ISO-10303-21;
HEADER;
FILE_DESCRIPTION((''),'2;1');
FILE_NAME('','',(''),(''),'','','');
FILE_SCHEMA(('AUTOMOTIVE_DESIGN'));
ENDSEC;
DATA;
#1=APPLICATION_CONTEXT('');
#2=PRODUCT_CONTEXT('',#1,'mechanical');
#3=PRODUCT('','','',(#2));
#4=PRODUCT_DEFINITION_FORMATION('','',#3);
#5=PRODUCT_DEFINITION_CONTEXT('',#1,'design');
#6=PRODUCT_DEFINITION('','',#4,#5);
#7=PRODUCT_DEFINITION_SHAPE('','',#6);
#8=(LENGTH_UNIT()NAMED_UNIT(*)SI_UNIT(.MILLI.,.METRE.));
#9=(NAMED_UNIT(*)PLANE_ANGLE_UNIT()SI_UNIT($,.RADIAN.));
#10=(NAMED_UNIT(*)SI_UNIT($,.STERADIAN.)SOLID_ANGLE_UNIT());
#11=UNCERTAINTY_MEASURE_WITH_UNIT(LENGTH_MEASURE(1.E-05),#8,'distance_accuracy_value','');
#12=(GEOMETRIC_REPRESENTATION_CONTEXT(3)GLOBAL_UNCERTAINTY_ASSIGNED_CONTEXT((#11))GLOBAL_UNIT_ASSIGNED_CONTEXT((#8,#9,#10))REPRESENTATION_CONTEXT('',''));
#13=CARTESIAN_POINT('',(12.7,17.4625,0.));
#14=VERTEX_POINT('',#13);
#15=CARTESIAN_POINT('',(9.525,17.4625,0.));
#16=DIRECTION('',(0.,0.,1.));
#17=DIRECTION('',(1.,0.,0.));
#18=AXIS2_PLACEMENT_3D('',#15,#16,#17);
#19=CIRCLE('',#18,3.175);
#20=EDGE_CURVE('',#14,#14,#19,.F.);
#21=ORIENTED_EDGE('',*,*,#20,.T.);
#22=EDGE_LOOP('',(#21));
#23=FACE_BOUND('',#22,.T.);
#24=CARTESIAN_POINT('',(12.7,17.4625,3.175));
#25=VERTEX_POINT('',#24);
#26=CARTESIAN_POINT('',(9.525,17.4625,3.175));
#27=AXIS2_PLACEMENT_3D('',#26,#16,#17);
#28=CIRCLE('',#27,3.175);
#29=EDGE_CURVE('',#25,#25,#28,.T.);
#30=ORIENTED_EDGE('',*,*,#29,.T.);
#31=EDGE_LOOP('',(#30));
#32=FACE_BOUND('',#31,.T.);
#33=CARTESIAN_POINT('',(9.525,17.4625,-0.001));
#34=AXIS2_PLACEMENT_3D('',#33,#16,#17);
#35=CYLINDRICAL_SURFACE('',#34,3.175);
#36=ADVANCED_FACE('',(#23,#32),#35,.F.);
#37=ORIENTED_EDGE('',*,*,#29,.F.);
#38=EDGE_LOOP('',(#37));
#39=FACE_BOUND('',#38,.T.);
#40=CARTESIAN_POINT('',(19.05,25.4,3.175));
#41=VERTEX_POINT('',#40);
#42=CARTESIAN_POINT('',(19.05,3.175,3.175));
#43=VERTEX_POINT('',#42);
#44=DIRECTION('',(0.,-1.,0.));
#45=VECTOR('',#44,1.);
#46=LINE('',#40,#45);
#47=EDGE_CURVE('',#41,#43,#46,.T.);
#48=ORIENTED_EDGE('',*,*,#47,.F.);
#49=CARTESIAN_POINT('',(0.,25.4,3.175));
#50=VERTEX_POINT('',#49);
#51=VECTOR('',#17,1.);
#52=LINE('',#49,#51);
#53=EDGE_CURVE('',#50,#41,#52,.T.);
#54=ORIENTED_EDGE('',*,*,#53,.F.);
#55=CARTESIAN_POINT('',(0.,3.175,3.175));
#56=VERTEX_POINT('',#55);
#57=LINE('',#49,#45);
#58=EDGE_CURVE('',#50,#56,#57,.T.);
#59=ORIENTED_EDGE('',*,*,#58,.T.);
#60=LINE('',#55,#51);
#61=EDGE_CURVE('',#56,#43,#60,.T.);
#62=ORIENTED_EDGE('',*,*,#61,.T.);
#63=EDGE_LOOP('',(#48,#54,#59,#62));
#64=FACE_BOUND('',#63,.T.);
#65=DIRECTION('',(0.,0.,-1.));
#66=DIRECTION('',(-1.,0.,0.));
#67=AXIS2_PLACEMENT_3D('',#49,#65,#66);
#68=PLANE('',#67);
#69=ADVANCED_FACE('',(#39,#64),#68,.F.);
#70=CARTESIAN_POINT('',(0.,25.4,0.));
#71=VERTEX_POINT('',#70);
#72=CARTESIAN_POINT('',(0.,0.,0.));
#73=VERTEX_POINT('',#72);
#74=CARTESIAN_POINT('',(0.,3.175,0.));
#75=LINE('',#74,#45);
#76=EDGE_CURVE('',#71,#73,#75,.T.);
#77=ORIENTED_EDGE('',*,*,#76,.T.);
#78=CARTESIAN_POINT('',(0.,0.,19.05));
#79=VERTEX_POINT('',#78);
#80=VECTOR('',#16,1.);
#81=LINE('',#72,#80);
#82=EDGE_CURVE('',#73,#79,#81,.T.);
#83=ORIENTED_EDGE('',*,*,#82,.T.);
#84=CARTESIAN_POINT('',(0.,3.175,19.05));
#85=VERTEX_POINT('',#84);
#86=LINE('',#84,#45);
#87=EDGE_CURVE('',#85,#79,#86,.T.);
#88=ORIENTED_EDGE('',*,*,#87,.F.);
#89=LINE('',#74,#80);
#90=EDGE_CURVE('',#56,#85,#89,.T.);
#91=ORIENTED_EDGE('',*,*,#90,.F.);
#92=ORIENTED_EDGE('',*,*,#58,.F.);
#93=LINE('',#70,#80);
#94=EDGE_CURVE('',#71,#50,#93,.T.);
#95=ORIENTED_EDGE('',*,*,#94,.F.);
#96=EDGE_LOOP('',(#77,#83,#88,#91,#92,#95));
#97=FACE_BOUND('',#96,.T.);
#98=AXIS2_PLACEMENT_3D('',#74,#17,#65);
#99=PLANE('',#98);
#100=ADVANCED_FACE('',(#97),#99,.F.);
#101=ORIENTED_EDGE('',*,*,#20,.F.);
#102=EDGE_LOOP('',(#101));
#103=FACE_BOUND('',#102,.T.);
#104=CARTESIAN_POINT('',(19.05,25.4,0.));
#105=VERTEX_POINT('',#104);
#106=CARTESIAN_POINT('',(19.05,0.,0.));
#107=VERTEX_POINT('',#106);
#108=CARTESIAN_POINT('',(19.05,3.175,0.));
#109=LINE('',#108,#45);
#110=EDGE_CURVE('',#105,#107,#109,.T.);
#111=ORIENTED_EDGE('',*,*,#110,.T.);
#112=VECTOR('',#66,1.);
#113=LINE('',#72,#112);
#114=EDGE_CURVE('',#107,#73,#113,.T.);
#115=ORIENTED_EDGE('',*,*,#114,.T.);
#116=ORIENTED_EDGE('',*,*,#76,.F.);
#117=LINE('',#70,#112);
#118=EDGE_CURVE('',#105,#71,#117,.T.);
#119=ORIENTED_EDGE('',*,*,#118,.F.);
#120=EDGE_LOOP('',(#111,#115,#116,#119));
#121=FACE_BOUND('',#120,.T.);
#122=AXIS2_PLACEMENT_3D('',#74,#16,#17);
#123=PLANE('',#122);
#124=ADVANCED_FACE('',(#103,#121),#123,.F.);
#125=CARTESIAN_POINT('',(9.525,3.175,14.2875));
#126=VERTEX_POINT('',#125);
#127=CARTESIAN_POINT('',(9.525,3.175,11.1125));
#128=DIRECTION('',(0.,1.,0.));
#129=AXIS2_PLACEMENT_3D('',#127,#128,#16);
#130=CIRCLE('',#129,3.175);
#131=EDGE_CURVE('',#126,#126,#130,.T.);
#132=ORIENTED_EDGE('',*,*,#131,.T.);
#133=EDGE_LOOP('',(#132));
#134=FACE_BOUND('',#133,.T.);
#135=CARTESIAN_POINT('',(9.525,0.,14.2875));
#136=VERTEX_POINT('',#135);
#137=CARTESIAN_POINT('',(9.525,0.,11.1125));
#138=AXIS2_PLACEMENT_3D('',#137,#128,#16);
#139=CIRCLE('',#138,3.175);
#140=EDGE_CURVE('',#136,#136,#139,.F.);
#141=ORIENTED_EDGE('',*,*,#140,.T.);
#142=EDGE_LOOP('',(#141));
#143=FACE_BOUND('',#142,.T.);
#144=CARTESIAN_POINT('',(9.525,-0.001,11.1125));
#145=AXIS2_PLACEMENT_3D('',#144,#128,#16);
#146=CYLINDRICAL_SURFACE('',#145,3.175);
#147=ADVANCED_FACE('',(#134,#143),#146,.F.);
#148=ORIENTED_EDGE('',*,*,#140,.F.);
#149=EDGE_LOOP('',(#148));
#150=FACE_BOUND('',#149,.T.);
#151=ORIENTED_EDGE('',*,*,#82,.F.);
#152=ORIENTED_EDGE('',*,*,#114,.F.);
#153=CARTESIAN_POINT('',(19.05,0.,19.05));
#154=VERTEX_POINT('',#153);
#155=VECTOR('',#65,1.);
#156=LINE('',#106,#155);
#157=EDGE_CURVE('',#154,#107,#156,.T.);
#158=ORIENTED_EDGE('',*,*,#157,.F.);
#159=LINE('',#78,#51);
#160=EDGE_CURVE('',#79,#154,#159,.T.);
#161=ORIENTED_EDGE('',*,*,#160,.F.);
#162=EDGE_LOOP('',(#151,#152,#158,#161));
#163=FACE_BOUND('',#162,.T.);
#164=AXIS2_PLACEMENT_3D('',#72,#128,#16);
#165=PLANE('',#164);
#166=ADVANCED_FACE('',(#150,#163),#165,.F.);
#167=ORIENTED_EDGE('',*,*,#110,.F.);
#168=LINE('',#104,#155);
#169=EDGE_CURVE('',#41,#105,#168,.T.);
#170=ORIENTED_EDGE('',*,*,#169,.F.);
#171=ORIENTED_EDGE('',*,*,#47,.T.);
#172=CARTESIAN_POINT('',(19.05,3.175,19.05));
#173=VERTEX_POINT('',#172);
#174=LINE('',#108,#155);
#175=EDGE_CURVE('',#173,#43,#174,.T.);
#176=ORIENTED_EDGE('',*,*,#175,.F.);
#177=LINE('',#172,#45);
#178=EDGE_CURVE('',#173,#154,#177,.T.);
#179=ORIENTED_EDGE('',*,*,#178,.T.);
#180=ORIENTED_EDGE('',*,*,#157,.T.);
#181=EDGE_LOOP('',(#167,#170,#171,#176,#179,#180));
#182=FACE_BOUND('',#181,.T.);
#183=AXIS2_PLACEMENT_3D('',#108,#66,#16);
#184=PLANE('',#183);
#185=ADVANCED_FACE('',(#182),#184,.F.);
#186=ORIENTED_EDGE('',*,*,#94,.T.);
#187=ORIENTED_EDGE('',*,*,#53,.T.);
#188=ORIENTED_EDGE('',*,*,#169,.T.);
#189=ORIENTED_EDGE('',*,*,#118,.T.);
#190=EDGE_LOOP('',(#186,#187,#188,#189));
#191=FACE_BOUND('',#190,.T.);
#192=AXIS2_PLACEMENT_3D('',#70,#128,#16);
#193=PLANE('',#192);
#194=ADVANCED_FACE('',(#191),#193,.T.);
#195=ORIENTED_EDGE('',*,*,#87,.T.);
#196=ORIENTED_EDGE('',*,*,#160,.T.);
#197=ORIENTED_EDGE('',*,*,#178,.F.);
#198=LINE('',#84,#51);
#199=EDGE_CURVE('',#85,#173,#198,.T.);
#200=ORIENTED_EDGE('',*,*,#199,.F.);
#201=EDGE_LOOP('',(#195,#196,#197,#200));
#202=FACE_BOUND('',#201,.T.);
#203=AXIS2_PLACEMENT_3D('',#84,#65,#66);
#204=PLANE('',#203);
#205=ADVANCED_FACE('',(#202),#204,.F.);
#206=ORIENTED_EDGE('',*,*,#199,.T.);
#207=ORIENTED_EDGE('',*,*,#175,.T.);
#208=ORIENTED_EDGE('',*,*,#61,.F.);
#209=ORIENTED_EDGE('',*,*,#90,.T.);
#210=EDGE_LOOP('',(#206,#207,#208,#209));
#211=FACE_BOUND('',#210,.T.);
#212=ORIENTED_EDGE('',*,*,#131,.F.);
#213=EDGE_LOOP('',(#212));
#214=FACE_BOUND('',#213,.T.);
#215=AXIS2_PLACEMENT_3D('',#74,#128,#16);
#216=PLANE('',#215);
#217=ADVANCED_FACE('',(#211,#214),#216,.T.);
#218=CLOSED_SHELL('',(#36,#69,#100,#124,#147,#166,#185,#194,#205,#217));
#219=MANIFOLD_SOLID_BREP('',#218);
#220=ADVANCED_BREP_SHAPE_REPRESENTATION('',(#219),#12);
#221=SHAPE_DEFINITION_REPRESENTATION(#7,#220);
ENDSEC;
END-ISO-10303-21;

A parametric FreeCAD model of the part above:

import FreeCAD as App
import Part
import Sketcher

V = App.Vector
Q = App.Units.Quantity

doc = App.newDocument("Part")
params = doc.addObject("Spreadsheet::Sheet", "Params")
for row, (alias, value) in enumerate([
    ("sketch1_width", "0.75 in"),
    ("pad1_length", "0.125 in"),
    ("sketch2_width", "0.75 in"),
    ("sketch2_height", "0.125 in"),
    ("pad2_length", "0.875 in"),
    ("sketch3_diameter", "0.25 in"),
    ("sketch4_diameter", "0.25 in"),
], start=1):
    params.set(f"A{row}", alias)
    params.set(f"B{row}", "=" + value)
    params.setAlias(f"B{row}", alias)

body = doc.addObject("PartDesign::Body", "Body")

sketch1 = doc.addObject("Sketcher::SketchObject", "Sketch")
body.addObject(sketch1)
sketch1.AttachmentSupport = (doc.XZ_Plane, [""])
sketch1.MapMode = "FlatFace"
sketch1.addGeometry(Part.LineSegment(V(0, 0, 0), V(0, 19, 0)), False)
sketch1.addGeometry(Part.LineSegment(V(0, 19, 0), V(19, 19, 0)), False)
sketch1.addGeometry(Part.LineSegment(V(19, 19, 0), V(19, 0, 0)), False)
sketch1.addGeometry(Part.LineSegment(V(19, 0, 0), V(0, 0, 0)), False)
sketch1.addConstraint(Sketcher.Constraint("Coincident", 0, 2, 1, 1))
sketch1.addConstraint(Sketcher.Constraint("Coincident", 1, 2, 2, 1))
sketch1.addConstraint(Sketcher.Constraint("Coincident", 2, 2, 3, 1))
sketch1.addConstraint(Sketcher.Constraint("Coincident", 3, 2, 0, 1))
sketch1.addConstraint(Sketcher.Constraint("Vertical", 0))
sketch1.addConstraint(Sketcher.Constraint("Horizontal", 1))
sketch1.addConstraint(Sketcher.Constraint("Vertical", 2))
sketch1.addConstraint(Sketcher.Constraint("Horizontal", 3))
sketch1.addConstraint(Sketcher.Constraint("Coincident", 3, 2, -1, 1))
sketch1.addConstraint(Sketcher.Constraint("Equal", 3, 0))
sketch1.addConstraint(Sketcher.Constraint("DistanceX", 1, 1, 1, 2, Q("0.75 in")))
sketch1.setExpression("Constraints[10]", "Params.sketch1_width")
pad1 = doc.addObject("PartDesign::Pad", "Pad")
body.addObject(pad1)
pad1.Profile = sketch1
pad1.setExpression("Length", "Params.pad1_length")
pad1.Reversed = True

sketch2 = doc.addObject("Sketcher::SketchObject", "Sketch001")
body.addObject(sketch2)
sketch2.AttachmentSupport = (doc.XZ_Plane, [""])
sketch2.MapMode = "FlatFace"
sketch2.AttachmentOffset = App.Placement(V(0, 0, -0.125 * 25.4), App.Rotation())
sketch2.addGeometry(Part.LineSegment(V(0, 0, 0), V(0, 3.2, 0)), False)
sketch2.addGeometry(Part.LineSegment(V(0, 3.2, 0), V(19.1, 3.2, 0)), False)
sketch2.addGeometry(Part.LineSegment(V(19.1, 3.2, 0), V(19.1, 0, 0)), False)
sketch2.addGeometry(Part.LineSegment(V(19.1, 0, 0), V(0, 0, 0)), False)
sketch2.addConstraint(Sketcher.Constraint("Coincident", 0, 2, 1, 1))
sketch2.addConstraint(Sketcher.Constraint("Coincident", 1, 2, 2, 1))
sketch2.addConstraint(Sketcher.Constraint("Coincident", 2, 2, 3, 1))
sketch2.addConstraint(Sketcher.Constraint("Coincident", 3, 2, 0, 1))
sketch2.addConstraint(Sketcher.Constraint("Vertical", 0))
sketch2.addConstraint(Sketcher.Constraint("Horizontal", 1))
sketch2.addConstraint(Sketcher.Constraint("Vertical", 2))
sketch2.addConstraint(Sketcher.Constraint("Horizontal", 3))
sketch2.addConstraint(Sketcher.Constraint("Coincident", 3, 2, -1, 1))
sketch2.addConstraint(Sketcher.Constraint("DistanceX", 1, 1, 1, 2, Q("0.75 in")))
sketch2.addConstraint(Sketcher.Constraint("DistanceY", 0, 1, 0, 2, Q("0.125 in")))
sketch2.setExpression("Constraints[9]", "Params.sketch2_width")
sketch2.setExpression("Constraints[10]", "Params.sketch2_height")
pad2 = doc.addObject("PartDesign::Pad", "Pad001")
body.addObject(pad2)
pad2.Profile = sketch2
pad2.setExpression("Length", "Params.pad2_length")
pad2.Reversed = True

sketch3 = doc.addObject("Sketcher::SketchObject", "Sketch002")
body.addObject(sketch3)
sketch3.AttachmentSupport = (doc.XZ_Plane, [""])
sketch3.MapMode = "FlatFace"
sketch3.AttachmentOffset = App.Placement(V(0, 0, -0.125 * 25.4), App.Rotation())
sketch3.addGeometry(Part.Circle(V(9.5, 11.1, 0), V(0, 0, 1), 3.2), False)
sketch3.addConstraint(Sketcher.Constraint("Diameter", 0, Q("0.25 in")))
sketch3.addConstraint(Sketcher.Constraint("DistanceX", -1, 1, 0, 3, Q("0.375 in")))
sketch3.addConstraint(Sketcher.Constraint("DistanceY", -1, 1, 0, 3, Q("0.4375 in")))
sketch3.setExpression("Constraints[0]", "Params.sketch3_diameter")
pocket1 = doc.addObject("PartDesign::Pocket", "Pocket")
body.addObject(pocket1)
pocket1.Profile = sketch3
pocket1.Type = "UpToFirst"
pocket1.Reversed = True

sketch4 = doc.addObject("Sketcher::SketchObject", "Sketch003")
body.addObject(sketch4)
sketch4.AttachmentSupport = (doc.XY_Plane, [""])
sketch4.MapMode = "FlatFace"
sketch4.AttachmentOffset = App.Placement(V(0, 0, 0.125 * 25.4), App.Rotation())
sketch4.addGeometry(Part.Circle(V(9.5, 17.5, 0), V(0, 0, 1), 3.2), False)
sketch4.addConstraint(Sketcher.Constraint("Diameter", 0, Q("0.25 in")))
sketch4.addConstraint(Sketcher.Constraint("DistanceX", -1, 1, 0, 3, Q("0.375 in")))
sketch4.addConstraint(Sketcher.Constraint("DistanceY", -1, 1, 0, 3, Q("0.6875 in")))
sketch4.setExpression("Constraints[0]", "Params.sketch4_diameter")
pocket2 = doc.addObject("PartDesign::Pocket", "Pocket001")
body.addObject(pocket2)
pocket2.Profile = sketch4
pocket2.Type = "UpToFirst"

doc.recompute()
